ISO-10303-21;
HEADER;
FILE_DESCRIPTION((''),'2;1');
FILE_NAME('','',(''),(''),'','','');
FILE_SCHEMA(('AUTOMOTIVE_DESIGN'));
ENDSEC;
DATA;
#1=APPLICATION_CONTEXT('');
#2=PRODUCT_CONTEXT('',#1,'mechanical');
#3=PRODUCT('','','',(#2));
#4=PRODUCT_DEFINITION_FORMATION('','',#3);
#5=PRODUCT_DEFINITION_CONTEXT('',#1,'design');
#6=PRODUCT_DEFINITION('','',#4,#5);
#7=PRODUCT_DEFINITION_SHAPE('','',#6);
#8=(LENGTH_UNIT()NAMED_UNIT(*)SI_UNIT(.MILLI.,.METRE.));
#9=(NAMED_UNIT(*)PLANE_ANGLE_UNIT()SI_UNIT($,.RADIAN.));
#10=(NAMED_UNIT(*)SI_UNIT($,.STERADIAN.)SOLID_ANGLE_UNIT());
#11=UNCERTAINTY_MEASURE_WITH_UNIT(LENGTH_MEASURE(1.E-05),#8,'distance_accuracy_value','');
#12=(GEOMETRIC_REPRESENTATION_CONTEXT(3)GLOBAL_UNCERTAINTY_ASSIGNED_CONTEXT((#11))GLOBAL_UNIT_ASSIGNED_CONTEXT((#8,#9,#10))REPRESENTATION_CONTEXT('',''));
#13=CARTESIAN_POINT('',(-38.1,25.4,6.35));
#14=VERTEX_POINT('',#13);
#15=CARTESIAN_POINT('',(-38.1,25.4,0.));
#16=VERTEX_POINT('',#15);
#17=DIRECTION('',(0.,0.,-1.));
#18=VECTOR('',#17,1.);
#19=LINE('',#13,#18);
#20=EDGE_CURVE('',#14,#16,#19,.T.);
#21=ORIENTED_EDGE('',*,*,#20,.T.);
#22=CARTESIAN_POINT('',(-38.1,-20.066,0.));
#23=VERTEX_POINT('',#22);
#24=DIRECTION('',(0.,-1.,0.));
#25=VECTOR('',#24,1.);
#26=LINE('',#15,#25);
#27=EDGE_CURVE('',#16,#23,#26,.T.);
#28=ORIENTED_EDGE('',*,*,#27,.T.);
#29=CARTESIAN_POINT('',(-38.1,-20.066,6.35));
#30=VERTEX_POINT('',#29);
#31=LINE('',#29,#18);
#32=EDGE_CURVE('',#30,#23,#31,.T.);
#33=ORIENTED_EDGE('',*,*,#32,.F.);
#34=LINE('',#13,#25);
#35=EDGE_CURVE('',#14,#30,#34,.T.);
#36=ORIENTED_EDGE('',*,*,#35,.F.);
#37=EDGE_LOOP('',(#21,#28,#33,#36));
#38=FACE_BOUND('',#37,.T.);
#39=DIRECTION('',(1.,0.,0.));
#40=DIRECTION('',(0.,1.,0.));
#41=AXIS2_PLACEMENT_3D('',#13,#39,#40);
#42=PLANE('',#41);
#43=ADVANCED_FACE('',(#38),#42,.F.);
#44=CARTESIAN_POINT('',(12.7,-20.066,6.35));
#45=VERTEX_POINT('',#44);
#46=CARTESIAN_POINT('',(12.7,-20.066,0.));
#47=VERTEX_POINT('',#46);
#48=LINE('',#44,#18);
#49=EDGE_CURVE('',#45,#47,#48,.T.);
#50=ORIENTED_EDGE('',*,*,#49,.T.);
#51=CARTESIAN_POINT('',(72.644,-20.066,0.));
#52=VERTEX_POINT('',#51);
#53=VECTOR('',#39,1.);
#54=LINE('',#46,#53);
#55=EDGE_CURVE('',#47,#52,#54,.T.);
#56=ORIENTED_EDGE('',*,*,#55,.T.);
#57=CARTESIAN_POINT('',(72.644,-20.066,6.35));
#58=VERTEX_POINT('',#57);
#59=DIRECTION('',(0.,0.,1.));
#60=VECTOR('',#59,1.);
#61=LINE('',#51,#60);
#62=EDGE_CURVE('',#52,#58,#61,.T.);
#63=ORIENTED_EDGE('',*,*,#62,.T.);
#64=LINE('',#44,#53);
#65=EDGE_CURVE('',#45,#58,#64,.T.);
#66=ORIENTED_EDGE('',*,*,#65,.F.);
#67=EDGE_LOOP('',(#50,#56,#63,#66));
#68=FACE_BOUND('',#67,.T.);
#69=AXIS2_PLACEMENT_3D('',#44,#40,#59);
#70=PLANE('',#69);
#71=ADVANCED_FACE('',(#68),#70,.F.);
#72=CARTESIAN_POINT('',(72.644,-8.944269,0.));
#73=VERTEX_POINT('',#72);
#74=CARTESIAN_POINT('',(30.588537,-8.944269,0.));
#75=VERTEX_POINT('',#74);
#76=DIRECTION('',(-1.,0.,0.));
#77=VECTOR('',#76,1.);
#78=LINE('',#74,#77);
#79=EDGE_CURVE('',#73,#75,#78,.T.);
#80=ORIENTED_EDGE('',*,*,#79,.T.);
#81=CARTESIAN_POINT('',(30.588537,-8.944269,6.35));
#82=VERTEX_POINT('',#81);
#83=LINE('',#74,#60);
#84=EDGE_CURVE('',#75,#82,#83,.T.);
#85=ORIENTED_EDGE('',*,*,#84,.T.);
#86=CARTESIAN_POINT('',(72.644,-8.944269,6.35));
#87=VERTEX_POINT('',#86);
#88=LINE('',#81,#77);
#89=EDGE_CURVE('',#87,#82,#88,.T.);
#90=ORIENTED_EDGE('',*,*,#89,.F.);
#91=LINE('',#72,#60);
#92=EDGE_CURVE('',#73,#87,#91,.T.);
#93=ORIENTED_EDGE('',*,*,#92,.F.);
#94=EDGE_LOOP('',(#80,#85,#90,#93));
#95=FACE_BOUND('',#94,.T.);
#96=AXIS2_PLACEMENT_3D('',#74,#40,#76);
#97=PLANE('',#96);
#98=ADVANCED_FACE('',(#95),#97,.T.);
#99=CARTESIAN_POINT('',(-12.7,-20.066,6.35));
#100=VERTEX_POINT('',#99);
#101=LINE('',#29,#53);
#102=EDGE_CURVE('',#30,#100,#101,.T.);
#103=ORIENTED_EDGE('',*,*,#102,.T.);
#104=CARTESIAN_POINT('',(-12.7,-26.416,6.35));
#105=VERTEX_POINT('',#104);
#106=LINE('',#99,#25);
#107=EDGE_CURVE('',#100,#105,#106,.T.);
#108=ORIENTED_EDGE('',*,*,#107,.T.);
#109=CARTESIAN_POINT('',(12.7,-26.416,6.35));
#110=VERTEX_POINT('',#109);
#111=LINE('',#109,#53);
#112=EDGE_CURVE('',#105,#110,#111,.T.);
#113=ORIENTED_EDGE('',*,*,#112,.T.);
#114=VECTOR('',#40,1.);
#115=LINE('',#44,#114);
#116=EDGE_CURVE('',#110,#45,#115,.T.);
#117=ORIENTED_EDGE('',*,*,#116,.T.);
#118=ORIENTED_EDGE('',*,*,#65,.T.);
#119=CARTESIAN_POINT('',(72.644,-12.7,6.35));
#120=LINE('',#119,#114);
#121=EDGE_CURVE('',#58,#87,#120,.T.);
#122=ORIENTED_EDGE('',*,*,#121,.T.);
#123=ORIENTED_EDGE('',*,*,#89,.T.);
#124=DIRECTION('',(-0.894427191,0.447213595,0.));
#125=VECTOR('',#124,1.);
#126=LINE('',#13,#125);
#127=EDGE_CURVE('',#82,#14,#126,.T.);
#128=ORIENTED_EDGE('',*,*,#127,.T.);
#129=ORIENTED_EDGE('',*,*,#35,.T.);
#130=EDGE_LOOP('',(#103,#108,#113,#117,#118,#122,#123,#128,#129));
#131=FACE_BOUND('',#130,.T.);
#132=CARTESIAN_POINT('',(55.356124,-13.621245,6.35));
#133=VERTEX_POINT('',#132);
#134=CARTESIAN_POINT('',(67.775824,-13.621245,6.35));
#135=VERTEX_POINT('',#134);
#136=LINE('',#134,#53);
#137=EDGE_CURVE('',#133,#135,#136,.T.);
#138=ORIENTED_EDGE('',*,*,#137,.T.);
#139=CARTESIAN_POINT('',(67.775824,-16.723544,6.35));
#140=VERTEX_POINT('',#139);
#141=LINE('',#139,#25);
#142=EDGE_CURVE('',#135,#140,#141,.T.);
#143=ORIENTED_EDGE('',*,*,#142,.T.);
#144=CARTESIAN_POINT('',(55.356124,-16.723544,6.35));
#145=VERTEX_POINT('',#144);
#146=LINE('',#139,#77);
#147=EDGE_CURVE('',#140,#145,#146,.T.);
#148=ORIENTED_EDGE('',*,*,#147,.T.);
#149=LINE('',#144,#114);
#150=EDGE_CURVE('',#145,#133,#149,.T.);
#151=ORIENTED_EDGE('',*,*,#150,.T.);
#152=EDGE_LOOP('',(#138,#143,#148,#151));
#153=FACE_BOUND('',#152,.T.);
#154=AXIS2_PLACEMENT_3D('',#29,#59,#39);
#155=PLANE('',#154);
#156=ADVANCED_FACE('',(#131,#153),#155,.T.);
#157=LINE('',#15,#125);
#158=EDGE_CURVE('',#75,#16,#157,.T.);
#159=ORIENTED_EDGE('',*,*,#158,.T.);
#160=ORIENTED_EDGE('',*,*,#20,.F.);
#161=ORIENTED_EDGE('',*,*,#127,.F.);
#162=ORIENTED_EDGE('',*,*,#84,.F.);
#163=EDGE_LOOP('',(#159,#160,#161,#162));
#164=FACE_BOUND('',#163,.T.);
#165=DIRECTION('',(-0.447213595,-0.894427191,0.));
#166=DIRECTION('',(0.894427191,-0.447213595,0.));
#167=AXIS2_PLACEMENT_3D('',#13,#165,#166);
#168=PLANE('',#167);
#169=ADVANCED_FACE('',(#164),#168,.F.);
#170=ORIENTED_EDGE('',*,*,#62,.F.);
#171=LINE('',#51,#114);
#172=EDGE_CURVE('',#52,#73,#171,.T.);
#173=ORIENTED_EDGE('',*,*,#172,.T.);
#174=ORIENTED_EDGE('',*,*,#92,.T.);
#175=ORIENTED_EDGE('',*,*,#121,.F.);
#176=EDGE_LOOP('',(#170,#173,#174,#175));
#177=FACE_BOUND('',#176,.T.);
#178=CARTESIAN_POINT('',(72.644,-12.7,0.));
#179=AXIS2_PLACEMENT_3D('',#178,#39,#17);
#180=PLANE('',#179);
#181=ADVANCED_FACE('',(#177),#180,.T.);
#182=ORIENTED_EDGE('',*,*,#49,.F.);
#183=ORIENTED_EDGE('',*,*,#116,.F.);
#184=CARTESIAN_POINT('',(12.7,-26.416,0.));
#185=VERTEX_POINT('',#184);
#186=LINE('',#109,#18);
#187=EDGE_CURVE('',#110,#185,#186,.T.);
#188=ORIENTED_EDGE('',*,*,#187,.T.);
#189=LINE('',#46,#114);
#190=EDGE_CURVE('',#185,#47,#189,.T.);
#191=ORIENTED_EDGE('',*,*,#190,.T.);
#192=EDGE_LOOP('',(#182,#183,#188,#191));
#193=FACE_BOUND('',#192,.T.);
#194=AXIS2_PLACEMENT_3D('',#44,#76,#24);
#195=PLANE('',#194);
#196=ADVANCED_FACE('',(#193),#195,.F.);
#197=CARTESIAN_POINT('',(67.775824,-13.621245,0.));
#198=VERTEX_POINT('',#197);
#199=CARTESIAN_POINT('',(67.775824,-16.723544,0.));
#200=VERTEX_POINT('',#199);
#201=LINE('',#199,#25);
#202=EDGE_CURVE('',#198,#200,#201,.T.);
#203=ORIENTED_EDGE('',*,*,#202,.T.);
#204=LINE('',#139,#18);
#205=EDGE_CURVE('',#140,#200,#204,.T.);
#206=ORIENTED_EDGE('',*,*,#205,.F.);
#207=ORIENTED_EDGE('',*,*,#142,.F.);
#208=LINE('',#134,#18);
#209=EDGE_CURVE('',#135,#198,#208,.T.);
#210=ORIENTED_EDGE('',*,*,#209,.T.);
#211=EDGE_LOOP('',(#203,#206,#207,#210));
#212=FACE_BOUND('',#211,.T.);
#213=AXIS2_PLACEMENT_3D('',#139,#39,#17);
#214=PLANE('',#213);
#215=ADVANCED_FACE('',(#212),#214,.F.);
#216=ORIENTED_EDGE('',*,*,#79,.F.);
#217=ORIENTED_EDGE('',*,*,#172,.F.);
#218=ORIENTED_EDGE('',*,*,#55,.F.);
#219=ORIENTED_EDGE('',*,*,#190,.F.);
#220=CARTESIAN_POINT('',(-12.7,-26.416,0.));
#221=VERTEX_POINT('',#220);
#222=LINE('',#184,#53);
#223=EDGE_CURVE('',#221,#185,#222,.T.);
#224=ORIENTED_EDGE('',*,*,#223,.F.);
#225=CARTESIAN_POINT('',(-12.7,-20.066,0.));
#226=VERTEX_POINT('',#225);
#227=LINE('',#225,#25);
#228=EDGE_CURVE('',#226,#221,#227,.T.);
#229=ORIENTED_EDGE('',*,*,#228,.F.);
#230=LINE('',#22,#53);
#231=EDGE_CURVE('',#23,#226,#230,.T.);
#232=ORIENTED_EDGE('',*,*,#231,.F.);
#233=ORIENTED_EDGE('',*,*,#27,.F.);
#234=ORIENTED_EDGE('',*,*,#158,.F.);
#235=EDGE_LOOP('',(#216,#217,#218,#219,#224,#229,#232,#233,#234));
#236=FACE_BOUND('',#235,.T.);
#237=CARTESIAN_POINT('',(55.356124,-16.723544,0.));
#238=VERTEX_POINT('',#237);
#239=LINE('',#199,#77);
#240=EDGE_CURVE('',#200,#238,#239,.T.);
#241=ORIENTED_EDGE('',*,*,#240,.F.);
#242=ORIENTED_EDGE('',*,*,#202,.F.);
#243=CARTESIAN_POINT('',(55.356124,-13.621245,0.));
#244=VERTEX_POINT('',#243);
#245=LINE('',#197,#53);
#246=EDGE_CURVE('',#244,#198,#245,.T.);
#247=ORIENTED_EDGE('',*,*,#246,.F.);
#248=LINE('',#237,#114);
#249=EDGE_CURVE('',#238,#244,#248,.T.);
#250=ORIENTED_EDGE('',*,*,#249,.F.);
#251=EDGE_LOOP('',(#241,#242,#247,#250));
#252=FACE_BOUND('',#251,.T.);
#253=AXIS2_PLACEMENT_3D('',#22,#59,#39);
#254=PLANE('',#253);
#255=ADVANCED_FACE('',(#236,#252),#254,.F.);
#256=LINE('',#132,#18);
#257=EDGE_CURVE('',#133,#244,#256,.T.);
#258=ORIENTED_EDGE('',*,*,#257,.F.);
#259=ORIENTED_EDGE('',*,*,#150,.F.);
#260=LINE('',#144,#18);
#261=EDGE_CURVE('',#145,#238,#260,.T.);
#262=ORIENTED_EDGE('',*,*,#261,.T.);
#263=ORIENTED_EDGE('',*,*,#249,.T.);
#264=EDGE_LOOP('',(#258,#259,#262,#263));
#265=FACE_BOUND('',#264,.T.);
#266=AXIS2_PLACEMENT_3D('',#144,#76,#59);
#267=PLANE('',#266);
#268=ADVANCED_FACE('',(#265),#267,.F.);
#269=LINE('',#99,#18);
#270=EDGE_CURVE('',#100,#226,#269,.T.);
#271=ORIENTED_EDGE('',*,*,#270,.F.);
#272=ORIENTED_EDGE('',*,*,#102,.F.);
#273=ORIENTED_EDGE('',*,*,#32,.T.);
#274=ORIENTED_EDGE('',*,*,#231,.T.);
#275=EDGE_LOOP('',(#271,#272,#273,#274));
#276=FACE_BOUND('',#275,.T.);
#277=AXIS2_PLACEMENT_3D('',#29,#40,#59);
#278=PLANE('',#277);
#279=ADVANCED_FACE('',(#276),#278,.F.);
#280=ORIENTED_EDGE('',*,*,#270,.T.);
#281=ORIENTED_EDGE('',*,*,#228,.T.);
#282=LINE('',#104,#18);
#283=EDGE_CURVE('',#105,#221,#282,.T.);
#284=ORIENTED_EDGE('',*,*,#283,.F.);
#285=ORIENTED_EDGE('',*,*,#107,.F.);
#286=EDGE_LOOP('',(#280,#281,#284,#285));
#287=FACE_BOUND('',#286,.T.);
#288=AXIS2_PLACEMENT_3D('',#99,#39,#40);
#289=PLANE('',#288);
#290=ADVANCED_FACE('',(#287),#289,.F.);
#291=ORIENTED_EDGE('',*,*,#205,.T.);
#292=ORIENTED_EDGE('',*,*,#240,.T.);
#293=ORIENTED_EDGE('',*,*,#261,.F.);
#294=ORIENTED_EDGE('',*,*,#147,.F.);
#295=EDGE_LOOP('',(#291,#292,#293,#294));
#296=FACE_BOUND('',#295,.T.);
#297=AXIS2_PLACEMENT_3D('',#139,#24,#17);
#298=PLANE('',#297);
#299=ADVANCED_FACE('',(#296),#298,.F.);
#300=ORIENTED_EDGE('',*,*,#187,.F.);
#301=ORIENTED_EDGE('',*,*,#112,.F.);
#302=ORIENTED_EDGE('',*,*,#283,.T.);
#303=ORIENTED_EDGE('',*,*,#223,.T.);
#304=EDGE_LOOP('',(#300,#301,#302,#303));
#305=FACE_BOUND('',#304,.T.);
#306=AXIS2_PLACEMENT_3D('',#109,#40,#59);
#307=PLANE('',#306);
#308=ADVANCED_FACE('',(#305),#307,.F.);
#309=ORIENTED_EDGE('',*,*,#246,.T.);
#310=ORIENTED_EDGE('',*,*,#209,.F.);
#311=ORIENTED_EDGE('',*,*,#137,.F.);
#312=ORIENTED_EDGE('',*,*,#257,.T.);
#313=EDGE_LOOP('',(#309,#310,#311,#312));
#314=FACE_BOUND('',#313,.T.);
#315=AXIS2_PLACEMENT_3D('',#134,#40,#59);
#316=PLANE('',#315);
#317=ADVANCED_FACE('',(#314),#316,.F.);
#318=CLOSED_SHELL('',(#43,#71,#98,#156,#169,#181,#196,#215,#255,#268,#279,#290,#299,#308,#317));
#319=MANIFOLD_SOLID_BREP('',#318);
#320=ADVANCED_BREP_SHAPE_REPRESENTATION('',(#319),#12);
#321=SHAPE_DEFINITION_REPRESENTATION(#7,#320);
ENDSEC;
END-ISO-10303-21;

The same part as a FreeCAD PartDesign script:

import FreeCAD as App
import Part
import Sketcher

V = App.Vector
Q = App.Units.Quantity

doc = App.newDocument("Part")
body = doc.addObject("PartDesign::Body", "Body")

# Sketch on XY plane
sketch1 = body.newObject("Sketcher::SketchObject", "Sketch")
sketch1.AttachmentSupport = (doc.getObject("XY_Plane"), [""])
sketch1.MapMode = "FlatFace"
sketch1.addGeometry(Part.LineSegment(V(-38, -20, 0), V(-13, -20, 0)), False)
sketch1.addGeometry(Part.LineSegment(V(-13, -20, 0), V(-13, -26, 0)), False)
sketch1.addGeometry(Part.LineSegment(V(-13, -26, 0), V(13, -26, 0)), False)
sketch1.addGeometry(Part.LineSegment(V(13, -26, 0), V(13, -20, 0)), False)
sketch1.addGeometry(Part.LineSegment(V(13, -20, 0), V(38, -20, 0)), False)
sketch1.addGeometry(Part.LineSegment(V(38, -20, 0), V(38, -13, 0)), False)
sketch1.addGeometry(Part.LineSegment(V(38, -13, 0), V(-38, 25, 0)), False)
sketch1.addGeometry(Part.LineSegment(V(-38, 25, 0), V(-38, -20, 0)), False)
sketch1.addConstraint(Sketcher.Constraint("Coincident", 0, 2, 1, 1))
sketch1.addConstraint(Sketcher.Constraint("Coincident", 1, 2, 2, 1))
sketch1.addConstraint(Sketcher.Constraint("Coincident", 2, 2, 3, 1))
sketch1.addConstraint(Sketcher.Constraint("Coincident", 3, 2, 4, 1))
sketch1.addConstraint(Sketcher.Constraint("Coincident", 4, 2, 5, 1))
sketch1.addConstraint(Sketcher.Constraint("Coincident", 5, 2, 6, 1))
sketch1.addConstraint(Sketcher.Constraint("Coincident", 6, 2, 7, 1))
sketch1.addConstraint(Sketcher.Constraint("Coincident", 7, 2, 0, 1))
sketch1.addConstraint(Sketcher.Constraint("Horizontal", 0))
sketch1.addConstraint(Sketcher.Constraint("Vertical", 1))
sketch1.addConstraint(Sketcher.Constraint("Horizontal", 2))
sketch1.addConstraint(Sketcher.Constraint("Vertical", 3))
sketch1.addConstraint(Sketcher.Constraint("Horizontal", 4))
sketch1.addConstraint(Sketcher.Constraint("Vertical", 5))
sketch1.addConstraint(Sketcher.Constraint("Vertical", 7))
sketch1.addConstraint(Sketcher.Constraint("Symmetric", 0, 2, 3, 2, -2))
sketch1.addConstraint(Sketcher.Constraint("Equal", 0, 2))
sketch1.addConstraint(Sketcher.Constraint("Equal", 2, 4))
sketch1.addConstraint(Sketcher.Constraint("DistanceX", 0, 1, 0, 2, Q("1 in")))
sketch1.addConstraint(Sketcher.Constraint("DistanceY", -1, 1, 6, 2, Q("1 in")))
sketch1.addConstraint(Sketcher.Constraint("DistanceY", 1, 2, 1, 1, Q("0.25 in")))
sketch1.addConstraint(Sketcher.Constraint("DistanceY", 5, 1, 5, 2, Q("0.29 in")))
sketch1.addConstraint(Sketcher.Constraint("DistanceY", 7, 2, 7, 1, Q("1.79 in")))
pad1 = body.newObject("PartDesign::Pad", "Pad")
pad1.Profile = sketch1
pad1.Length = Q("0.25 in")

# Sketch on XY plane
sketch2 = body.newObject("Sketcher::SketchObject", "Sketch001")
sketch2.AttachmentSupport = (doc.getObject("XY_Plane"), [""])
sketch2.MapMode = "FlatFace"
sketch2.AttachmentOffset = App.Placement(V(0, 0, 0.25 * 25.4), App.Rotation())
sketch2.addGeometry(Part.LineSegment(V(38, -20, 0), V(73, -20, 0)), False)
sketch2.addGeometry(Part.LineSegment(V(73, -20, 0), V(73, -9, 0)), False)
sketch2.addGeometry(Part.LineSegment(V(73, -9, 0), V(31, -9, 0)), False)
sketch2.addGeometry(Part.LineSegment(V(31, -9, 0), V(38, -13, 0)), False)
sketch2.addGeometry(Part.LineSegment(V(38, -13, 0), V(38, -20, 0)), False)
sketch2.addConstraint(Sketcher.Constraint("Coincident", 0, 2, 1, 1))
sketch2.addConstraint(Sketcher.Constraint("Coincident", 1, 2, 2, 1))
sketch2.addConstraint(Sketcher.Constraint("Coincident", 2, 2, 3, 1))
sketch2.addConstraint(Sketcher.Constraint("Coincident", 3, 2, 4, 1))
sketch2.addConstraint(Sketcher.Constraint("Coincident", 4, 2, 0, 1))
sketch2.addConstraint(Sketcher.Constraint("Horizontal", 0))
sketch2.addConstraint(Sketcher.Constraint("Vertical", 1))
sketch2.addConstraint(Sketcher.Constraint("Horizontal", 2))
sketch2.addConstraint(Sketcher.Constraint("Vertical", 4))
sketch2.addConstraint(Sketcher.Constraint("DistanceX", 0, 1, 0, 2, Q("1.36 in")))
sketch2.addConstraint(Sketcher.Constraint("DistanceY", 4, 2, 4, 1, Q("0.29 in")))
sketch2.addConstraint(Sketcher.Constraint("DistanceX", -1, 1, 3, 2, Q("1.5 in")))
sketch2.addConstraint(Sketcher.Constraint("DistanceY", 3, 2, -1, 1, Q("0.5 in")))
sketch2.addConstraint(Sketcher.Constraint("DistanceY", 1, 1, 1, 2, Q("11.121731 mm")))
sketch2.addConstraint(Sketcher.Constraint("Distance", 3, Q("8.39807 mm")))
pad2 = body.newObject("PartDesign::Pad", "Pad001")
pad2.Profile = sketch2
pad2.Length = Q("0.25 in")
pad2.Reversed = True

# Sketch on XY plane
sketch3 = body.newObject("Sketcher::SketchObject", "Sketch002")
sketch3.AttachmentSupport = (doc.getObject("XY_Plane"), [""])
sketch3.MapMode = "FlatFace"
sketch3.addGeometry(Part.LineSegment(V(67.8, -13.6, 0), V(67.8, -16.7, 0)), False)
sketch3.addGeometry(Part.LineSegment(V(67.8, -16.7, 0), V(55.4, -16.7, 0)), False)
sketch3.addGeometry(Part.LineSegment(V(55.4, -16.7, 0), V(55.4, -13.6, 0)), False)
sketch3.addGeometry(Part.LineSegment(V(55.4, -13.6, 0), V(67.8, -13.6, 0)), False)
sketch3.addConstraint(Sketcher.Constraint("Coincident", 0, 2, 1, 1))
sketch3.addConstraint(Sketcher.Constraint("Coincident", 1, 2, 2, 1))
sketch3.addConstraint(Sketcher.Constraint("Coincident", 2, 2, 3, 1))
sketch3.addConstraint(Sketcher.Constraint("Coincident", 3, 2, 0, 1))
sketch3.addConstraint(Sketcher.Constraint("Vertical", 0))
sketch3.addConstraint(Sketcher.Constraint("Horizontal", 1))
sketch3.addConstraint(Sketcher.Constraint("Vertical", 2))
sketch3.addConstraint(Sketcher.Constraint("Horizontal", 3))
sketch3.addConstraint(Sketcher.Constraint("DistanceX", 1, 2, 1, 1, Q("12.4197 mm")))
sketch3.addConstraint(Sketcher.Constraint("DistanceY", 0, 2, 0, 1, Q("3.102299 mm")))
sketch3.addConstraint(Sketcher.Constraint("DistanceX", -1, 1, 0, 2, Q("67.775824 mm")))
sketch3.addConstraint(Sketcher.Constraint("DistanceY", 0, 2, -1, 1, Q("16.723544 mm")))
pocket1 = body.newObject("PartDesign::Pocket", "Pocket")
pocket1.Profile = sketch3
pocket1.Type = "ThroughAll"
pocket1.Reversed = True

doc.recompute()
